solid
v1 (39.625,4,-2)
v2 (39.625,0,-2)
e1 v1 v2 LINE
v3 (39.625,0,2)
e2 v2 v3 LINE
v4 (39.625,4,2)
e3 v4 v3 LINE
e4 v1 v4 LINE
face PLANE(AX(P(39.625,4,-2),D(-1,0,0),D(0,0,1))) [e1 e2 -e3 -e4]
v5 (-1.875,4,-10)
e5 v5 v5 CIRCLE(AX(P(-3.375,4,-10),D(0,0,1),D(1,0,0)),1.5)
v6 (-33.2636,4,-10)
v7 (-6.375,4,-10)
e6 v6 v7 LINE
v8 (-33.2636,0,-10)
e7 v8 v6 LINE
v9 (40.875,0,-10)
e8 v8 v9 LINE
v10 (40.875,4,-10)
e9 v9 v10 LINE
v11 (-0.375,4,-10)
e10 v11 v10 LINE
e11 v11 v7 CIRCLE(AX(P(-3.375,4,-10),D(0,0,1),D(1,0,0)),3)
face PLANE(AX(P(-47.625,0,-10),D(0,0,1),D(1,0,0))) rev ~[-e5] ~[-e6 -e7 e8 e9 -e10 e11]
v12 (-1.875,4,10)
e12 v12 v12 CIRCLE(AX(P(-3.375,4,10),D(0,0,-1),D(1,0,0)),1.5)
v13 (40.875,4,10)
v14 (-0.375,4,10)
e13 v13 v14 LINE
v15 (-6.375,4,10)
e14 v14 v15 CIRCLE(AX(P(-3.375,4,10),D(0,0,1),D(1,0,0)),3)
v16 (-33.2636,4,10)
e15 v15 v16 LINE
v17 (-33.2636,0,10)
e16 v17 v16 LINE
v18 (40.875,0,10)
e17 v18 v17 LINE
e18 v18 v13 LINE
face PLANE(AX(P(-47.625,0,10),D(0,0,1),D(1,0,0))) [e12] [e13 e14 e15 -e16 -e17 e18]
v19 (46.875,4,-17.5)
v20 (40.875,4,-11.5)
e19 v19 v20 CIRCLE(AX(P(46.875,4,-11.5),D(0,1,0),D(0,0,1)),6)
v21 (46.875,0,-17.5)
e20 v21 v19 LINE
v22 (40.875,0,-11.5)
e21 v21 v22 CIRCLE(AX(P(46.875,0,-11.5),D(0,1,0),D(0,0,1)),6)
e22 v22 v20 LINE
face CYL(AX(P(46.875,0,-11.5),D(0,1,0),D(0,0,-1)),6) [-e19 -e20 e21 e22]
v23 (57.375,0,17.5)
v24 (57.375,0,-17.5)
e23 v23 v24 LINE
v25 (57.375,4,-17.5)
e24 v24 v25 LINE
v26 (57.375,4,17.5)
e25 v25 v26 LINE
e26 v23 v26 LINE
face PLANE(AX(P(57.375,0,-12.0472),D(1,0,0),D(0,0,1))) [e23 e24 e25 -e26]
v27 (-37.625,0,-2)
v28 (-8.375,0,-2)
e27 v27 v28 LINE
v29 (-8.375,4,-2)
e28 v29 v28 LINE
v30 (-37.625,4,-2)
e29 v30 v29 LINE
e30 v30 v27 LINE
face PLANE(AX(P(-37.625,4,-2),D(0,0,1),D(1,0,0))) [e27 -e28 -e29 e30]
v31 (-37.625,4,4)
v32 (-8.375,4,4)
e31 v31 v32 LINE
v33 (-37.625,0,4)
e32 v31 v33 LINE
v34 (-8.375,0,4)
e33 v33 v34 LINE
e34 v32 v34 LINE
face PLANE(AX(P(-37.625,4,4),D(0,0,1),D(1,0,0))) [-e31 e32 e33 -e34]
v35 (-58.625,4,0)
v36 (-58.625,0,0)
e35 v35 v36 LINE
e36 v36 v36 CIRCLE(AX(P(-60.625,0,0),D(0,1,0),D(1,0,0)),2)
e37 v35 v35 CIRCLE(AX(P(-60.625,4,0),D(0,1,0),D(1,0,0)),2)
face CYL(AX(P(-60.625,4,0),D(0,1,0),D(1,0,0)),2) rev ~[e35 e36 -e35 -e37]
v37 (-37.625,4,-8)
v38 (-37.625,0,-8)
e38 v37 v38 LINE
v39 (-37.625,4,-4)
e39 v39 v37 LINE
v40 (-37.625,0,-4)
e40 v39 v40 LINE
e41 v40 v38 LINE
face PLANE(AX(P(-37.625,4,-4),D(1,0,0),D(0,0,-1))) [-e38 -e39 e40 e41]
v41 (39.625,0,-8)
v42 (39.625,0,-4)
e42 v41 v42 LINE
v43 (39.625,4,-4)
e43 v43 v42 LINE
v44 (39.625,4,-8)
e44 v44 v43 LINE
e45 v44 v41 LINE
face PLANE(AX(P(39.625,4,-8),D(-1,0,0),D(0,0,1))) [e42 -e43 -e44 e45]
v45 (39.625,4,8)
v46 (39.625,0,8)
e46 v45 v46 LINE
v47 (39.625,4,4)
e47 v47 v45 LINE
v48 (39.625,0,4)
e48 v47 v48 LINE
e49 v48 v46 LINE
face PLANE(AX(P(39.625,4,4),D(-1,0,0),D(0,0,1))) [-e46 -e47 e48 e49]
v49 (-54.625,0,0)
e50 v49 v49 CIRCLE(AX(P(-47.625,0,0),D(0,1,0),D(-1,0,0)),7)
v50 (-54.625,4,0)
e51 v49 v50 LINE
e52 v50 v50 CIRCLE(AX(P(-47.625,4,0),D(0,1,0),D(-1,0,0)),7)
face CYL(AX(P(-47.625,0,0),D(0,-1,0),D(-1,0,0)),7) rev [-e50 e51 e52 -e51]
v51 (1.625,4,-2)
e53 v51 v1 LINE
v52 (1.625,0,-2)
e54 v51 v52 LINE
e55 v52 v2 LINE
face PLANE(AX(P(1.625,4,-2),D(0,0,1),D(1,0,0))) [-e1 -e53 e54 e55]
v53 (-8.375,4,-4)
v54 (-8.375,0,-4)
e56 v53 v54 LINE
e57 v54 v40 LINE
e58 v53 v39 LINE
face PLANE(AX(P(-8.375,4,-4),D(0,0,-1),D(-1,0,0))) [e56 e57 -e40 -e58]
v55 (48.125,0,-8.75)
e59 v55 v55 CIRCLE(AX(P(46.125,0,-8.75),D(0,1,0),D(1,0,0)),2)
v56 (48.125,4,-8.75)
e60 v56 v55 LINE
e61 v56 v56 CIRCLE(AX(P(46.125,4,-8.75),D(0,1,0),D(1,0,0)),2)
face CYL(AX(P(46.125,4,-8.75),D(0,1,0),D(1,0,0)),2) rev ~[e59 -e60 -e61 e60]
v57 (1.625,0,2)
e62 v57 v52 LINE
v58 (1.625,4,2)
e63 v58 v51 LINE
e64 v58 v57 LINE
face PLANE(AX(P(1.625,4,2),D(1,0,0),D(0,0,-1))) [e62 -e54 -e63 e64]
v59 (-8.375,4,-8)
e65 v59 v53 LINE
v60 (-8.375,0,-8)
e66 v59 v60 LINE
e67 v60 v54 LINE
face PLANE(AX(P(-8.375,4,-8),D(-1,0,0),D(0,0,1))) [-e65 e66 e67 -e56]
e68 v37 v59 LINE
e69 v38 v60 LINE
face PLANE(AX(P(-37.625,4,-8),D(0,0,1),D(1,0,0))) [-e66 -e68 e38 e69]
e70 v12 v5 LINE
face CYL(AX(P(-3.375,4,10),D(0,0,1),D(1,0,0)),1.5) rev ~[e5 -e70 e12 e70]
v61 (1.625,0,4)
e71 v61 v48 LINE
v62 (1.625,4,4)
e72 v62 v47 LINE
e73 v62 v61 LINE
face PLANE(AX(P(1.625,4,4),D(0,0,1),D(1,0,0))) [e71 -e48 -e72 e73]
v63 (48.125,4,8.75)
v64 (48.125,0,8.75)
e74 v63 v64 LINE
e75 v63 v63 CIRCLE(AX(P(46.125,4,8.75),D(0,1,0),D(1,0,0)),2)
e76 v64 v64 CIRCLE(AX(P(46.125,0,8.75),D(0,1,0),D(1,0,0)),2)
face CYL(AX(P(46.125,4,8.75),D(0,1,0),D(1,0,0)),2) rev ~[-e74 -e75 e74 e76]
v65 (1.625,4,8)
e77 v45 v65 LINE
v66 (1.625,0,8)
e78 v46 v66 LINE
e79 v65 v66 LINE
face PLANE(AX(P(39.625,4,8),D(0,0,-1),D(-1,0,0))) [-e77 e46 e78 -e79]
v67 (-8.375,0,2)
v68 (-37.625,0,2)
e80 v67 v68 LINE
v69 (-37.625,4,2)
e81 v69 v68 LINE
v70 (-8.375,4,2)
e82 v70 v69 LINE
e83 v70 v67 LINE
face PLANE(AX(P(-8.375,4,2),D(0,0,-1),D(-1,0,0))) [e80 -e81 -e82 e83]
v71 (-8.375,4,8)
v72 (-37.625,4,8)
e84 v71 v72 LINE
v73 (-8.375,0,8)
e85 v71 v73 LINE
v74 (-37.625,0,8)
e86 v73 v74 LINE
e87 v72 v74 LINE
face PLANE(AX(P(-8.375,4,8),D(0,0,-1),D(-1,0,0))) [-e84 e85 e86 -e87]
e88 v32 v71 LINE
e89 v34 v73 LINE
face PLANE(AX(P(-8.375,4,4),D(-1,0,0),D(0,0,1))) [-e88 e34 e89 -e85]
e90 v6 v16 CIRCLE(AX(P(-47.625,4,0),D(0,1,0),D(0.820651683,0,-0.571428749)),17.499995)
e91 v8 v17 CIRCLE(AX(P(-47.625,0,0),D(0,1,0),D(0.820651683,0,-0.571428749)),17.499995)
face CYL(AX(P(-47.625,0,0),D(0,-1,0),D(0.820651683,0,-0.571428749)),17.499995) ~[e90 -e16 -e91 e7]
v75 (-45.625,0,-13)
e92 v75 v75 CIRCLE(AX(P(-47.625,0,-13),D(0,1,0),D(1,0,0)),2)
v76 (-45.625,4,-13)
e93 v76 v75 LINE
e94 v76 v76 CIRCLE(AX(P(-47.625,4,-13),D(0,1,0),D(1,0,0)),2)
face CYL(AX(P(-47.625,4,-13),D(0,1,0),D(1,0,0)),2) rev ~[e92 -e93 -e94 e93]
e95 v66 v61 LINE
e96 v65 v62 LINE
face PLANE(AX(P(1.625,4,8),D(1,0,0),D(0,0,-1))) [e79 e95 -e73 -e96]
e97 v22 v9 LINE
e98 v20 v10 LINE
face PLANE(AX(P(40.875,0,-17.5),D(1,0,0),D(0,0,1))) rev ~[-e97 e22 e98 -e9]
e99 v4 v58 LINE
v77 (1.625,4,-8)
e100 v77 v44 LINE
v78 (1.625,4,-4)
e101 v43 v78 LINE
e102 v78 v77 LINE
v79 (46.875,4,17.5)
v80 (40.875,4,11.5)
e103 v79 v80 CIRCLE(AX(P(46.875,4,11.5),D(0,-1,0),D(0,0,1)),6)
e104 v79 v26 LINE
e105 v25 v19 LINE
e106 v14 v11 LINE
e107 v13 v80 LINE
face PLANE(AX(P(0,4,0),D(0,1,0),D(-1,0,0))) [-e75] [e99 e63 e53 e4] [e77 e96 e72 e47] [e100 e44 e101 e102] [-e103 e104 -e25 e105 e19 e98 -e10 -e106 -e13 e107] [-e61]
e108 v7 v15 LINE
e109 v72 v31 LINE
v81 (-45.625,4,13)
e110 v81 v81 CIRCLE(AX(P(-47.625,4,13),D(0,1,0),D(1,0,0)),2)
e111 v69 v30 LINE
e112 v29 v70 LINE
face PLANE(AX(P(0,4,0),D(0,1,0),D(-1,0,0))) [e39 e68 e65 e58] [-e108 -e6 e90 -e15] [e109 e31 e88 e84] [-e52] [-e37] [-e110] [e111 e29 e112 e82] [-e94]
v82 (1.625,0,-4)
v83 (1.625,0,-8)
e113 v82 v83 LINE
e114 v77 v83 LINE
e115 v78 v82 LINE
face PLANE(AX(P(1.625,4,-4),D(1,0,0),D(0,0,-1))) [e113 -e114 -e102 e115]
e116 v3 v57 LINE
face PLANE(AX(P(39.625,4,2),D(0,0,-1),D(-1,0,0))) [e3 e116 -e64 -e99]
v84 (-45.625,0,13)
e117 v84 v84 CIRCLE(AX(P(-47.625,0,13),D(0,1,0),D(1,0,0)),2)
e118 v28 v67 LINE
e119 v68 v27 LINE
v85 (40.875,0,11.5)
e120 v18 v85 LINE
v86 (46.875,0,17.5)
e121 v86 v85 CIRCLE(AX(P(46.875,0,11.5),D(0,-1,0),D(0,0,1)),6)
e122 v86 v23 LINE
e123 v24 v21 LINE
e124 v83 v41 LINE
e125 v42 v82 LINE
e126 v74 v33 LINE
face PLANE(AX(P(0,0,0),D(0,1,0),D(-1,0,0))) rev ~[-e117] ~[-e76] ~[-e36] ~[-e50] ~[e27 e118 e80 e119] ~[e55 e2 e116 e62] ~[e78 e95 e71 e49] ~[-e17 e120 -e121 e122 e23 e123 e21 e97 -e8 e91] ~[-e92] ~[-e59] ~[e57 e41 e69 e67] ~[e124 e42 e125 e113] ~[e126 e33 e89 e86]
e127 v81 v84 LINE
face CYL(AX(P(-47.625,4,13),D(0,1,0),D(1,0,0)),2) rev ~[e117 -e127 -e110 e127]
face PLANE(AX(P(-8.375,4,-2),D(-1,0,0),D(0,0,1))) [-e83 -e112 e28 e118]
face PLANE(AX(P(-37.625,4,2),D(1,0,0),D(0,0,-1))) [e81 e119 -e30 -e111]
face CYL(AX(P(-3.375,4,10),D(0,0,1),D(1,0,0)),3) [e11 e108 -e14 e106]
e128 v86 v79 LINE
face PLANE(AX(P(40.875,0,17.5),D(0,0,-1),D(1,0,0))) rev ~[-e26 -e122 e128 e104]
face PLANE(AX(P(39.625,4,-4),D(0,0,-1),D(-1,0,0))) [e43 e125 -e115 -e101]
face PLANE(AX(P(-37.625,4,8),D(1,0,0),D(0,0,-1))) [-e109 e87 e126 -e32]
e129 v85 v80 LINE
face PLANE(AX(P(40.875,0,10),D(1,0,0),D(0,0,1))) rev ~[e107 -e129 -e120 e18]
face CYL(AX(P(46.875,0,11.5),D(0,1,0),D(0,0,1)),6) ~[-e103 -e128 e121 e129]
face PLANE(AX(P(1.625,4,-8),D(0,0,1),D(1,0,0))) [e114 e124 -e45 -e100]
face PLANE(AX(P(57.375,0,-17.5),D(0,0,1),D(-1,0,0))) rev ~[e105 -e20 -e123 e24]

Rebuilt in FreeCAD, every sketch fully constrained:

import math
import FreeCAD as App
import Part
import Sketcher

V = App.Vector
Q = App.Units.Quantity


def edges_at(feature, points):
    """Names of the edges that pass closest to the given points."""
    edges = feature.Shape.Edges
    near = lambda p: min(range(len(edges)), key=lambda i: edges[i].distToShape(Part.Vertex(*p))[0])
    return sorted({f"Edge{near(p) + 1}" for p in points})

doc = App.newDocument("Part")
body = doc.addObject("PartDesign::Body", "Body")

sketch1 = body.newObject("Sketcher::SketchObject", "Sketch")
sketch1.AttachmentSupport = (doc.getObject("XZ_Plane"), [""])
sketch1.MapMode = "FlatFace"
sketch1.addGeometry([
    Part.LineSegment(V(57, 18, 0), V(57, -18, 0)),
    Part.LineSegment(V(57, -18, 0), V(41, -18, 0)),
    Part.LineSegment(V(41, -18, 0), V(41, -10, 0)),
    Part.LineSegment(V(41, -10, 0), V(-33, -10, 0)),
    Part.ArcOfCircle(Part.Circle(V(-48, 0, 0), V(0, 0, 1), 17), math.radians(35), math.radians(325)),
    Part.LineSegment(V(-33, 10, 0), V(41, 10, 0)),
    Part.LineSegment(V(41, 10, 0), V(41, 18, 0)),
    Part.LineSegment(V(41, 18, 0), V(57, 18, 0)),
    Part.Circle(V(-48, 0, 0), V(0, 0, 1), 7),
], False)
sketch1.addConstraint([
    Sketcher.Constraint("Coincident", 0, 2, 1, 1),
    Sketcher.Constraint("Coincident", 1, 2, 2, 1),
    Sketcher.Constraint("Coincident", 2, 2, 3, 1),
    Sketcher.Constraint("Coincident", 3, 2, 4, 2),
    Sketcher.Constraint("Coincident", 4, 1, 5, 1),
    Sketcher.Constraint("Coincident", 5, 2, 6, 1),
    Sketcher.Constraint("Coincident", 6, 2, 7, 1),
    Sketcher.Constraint("Coincident", 7, 2, 0, 1),
    Sketcher.Constraint("Vertical", 0),
    Sketcher.Constraint("Horizontal", 1),
    Sketcher.Constraint("Vertical", 2),
    Sketcher.Constraint("Horizontal", 3),
    Sketcher.Constraint("Horizontal", 5),
    Sketcher.Constraint("Vertical", 6),
    Sketcher.Constraint("Horizontal", 7),
    Sketcher.Constraint("Coincident", 8, 3, 4, 3),
    Sketcher.Constraint("Symmetric", 3, 2, 4, 1, -1),
    Sketcher.Constraint("Symmetric", 1, 2, 6, 2, -1),
    Sketcher.Constraint("Diameter", 8, Q("14 mm")),
    Sketcher.Constraint("Radius", 4, Q("17.5 mm")),
    Sketcher.Constraint("DistanceY", 0, 2, 0, 1, Q("35 mm")),
    Sketcher.Constraint("DistanceX", 1, 2, 1, 1, Q("16.5 mm")),
    Sketcher.Constraint("DistanceY", 3, 2, 4, 1, Q("20 mm")),
    Sketcher.Constraint("DistanceX", 4, 3, 0, 2, Q("105 mm")),
    Sketcher.Constraint("DistanceX", 4, 3, -1, 1, Q("47.625 mm")),
])
pad1 = body.newObject("PartDesign::Pad", "Pad")
pad1.Profile = sketch1
pad1.Length = 4
pad1.Reversed = True

sketch2 = body.newObject("Sketcher::SketchObject", "Sketch001")
sketch2.AttachmentSupport = (doc.getObject("XZ_Plane"), [""])
sketch2.MapMode = "FlatFace"
sketch2.AttachmentOffset = App.Placement(V(0, 0, -4), App.Rotation())
sketch2.addGeometry([
    Part.Circle(V(46.1, 8.8, 0), V(0, 0, 1), 2),
    Part.Circle(V(46.1, -8.8, 0), V(0, 0, 1), 2),
], False)
sketch2.addConstraint([
    Sketcher.Constraint("Equal", 0, 1),
    Sketcher.Constraint("Symmetric", 0, 3, 1, 3, -1),
    Sketcher.Constraint("Diameter", 0, Q("4 mm")),
    Sketcher.Constraint("DistanceY", 1, 3, 0, 3, Q("17.5 mm")),
    Sketcher.Constraint("DistanceX", -1, 1, 0, 3, Q("46.125 mm")),
])
pocket1 = body.newObject("PartDesign::Pocket", "Pocket")
pocket1.Profile = sketch2
pocket1.Type = "ThroughAll"
pocket1.Reversed = True
doc.recompute()

fillet = body.newObject("PartDesign::Fillet", "Fillet")
fillet.Base = (pocket1, edges_at(pocket1, [(40.875, 2, -17.5), (40.875, 2, 17.5)]))
fillet.Radius = 6

sketch3 = body.newObject("Sketcher::SketchObject", "Sketch002")
sketch3.AttachmentSupport = (doc.getObject("XY_Plane"), [""])
sketch3.MapMode = "FlatFace"
sketch3.AttachmentOffset = App.Placement(V(0, 0, 10), App.Rotation())
sketch3.addGeometry(Part.Circle(V(-3.4, 4, 0), V(0, 0, 1), 1.5), False)
sketch3.addConstraint([
    Sketcher.Constraint("Diameter", 0, Q("3 mm")),
    Sketcher.Constraint("DistanceY", -1, 1, 0, 3, Q("4 mm")),
    Sketcher.Constraint("DistanceX", 0, 3, -1, 1, Q("3.375 mm")),
])
pocket2 = body.newObject("PartDesign::Pocket", "Pocket001")
pocket2.Profile = sketch3
pocket2.Length = 20

sketch4 = body.newObject("Sketcher::SketchObject", "Sketch003")
sketch4.AttachmentSupport = (doc.getObject("XY_Plane"), [""])
sketch4.MapMode = "FlatFace"
sketch4.AttachmentOffset = App.Placement(V(0, 0, 10), App.Rotation())
sketch4.addGeometry([
    Part.Circle(V(-3.4, 4, 0), V(0, 0, 1), 3),
    Part.Circle(V(-3.4, 4, 0), V(0, 0, 1), 1.5),
], False)
sketch4.addConstraint([
    Sketcher.Constraint("Coincident", 1, 3, 0, 3),
    Sketcher.Constraint("Diameter", 0, Q("6 mm")),
    Sketcher.Constraint("Diameter", 1, Q("3 mm")),
    Sketcher.Constraint("DistanceY", -1, 1, 0, 3, Q("4 mm")),
    Sketcher.Constraint("DistanceX", 0, 3, -1, 1, Q("3.375 mm")),
])
pad2 = body.newObject("PartDesign::Pad", "Pad001")
pad2.Profile = sketch4
pad2.Length = 20
pad2.Reversed = True

sketch5 = body.newObject("Sketcher::SketchObject", "Sketch004")
sketch5.AttachmentSupport = (doc.getObject("XZ_Plane"), [""])
sketch5.MapMode = "FlatFace"
sketch5.AttachmentOffset = App.Placement(V(0, 0, -4), App.Rotation())
sketch5.addGeometry([
    Part.LineSegment(V(-8.4, -8, 0), V(-37.6, -8, 0)),
    Part.LineSegment(V(-37.6, -8, 0), V(-37.6, -4, 0)),
    Part.LineSegment(V(-37.6, -4, 0), V(-8.4, -4, 0)),
    Part.LineSegment(V(-8.4, -4, 0), V(-8.4, -8, 0)),
    Part.LineSegment(V(-8.4, -2, 0), V(-37.6, -2, 0)),
    Part.LineSegment(V(-37.6, -2, 0), V(-37.6, 2, 0)),
    Part.LineSegment(V(-37.6, 2, 0), V(-8.4, 2, 0)),
    Part.LineSegment(V(-8.4, 2, 0), V(-8.4, -2, 0)),
    Part.LineSegment(V(-8.4, 4, 0), V(-37.6, 4, 0)),
    Part.LineSegment(V(-37.6, 4, 0), V(-37.6, 8, 0)),
    Part.LineSegment(V(-37.6, 8, 0), V(-8.4, 8, 0)),
    Part.LineSegment(V(-8.4, 8, 0), V(-8.4, 4, 0)),
    Part.LineSegment(V(39.6, -8, 0), V(1.6, -8, 0)),
    Part.LineSegment(V(1.6, -8, 0), V(1.6, -4, 0)),
    Part.LineSegment(V(1.6, -4, 0), V(39.6, -4, 0)),
    Part.LineSegment(V(39.6, -4, 0), V(39.6, -8, 0)),
    Part.LineSegment(V(1.6, -2, 0), V(1.6, 2, 0)),
    Part.LineSegment(V(1.6, 2, 0), V(39.6, 2, 0)),
    Part.LineSegment(V(39.6, 2, 0), V(39.6, -2, 0)),
    Part.LineSegment(V(39.6, -2, 0), V(1.6, -2, 0)),
    Part.LineSegment(V(1.6, 4, 0), V(1.6, 8, 0)),
    Part.LineSegment(V(1.6, 8, 0), V(39.6, 8, 0)),
    Part.LineSegment(V(39.6, 8, 0), V(39.6, 4, 0)),
    Part.LineSegment(V(39.6, 4, 0), V(1.6, 4, 0)),
], False)
sketch5.addConstraint([
    Sketcher.Constraint("Coincident", 0, 2, 1, 1),
    Sketcher.Constraint("Coincident", 1, 2, 2, 1),
    Sketcher.Constraint("Coincident", 2, 2, 3, 1),
    Sketcher.Constraint("Coincident", 3, 2, 0, 1),
    Sketcher.Constraint("Coincident", 4, 2, 5, 1),
    Sketcher.Constraint("Coincident", 5, 2, 6, 1),
    Sketcher.Constraint("Coincident", 6, 2, 7, 1),
    Sketcher.Constraint("Coincident", 7, 2, 4, 1),
    Sketcher.Constraint("Coincident", 8, 2, 9, 1),
    Sketcher.Constraint("Coincident", 9, 2, 10, 1),
    Sketcher.Constraint("Coincident", 10, 2, 11, 1),
    Sketcher.Constraint("Coincident", 11, 2, 8, 1),
    Sketcher.Constraint("Coincident", 12, 2, 13, 1),
    Sketcher.Constraint("Coincident", 13, 2, 14, 1),
    Sketcher.Constraint("Coincident", 14, 2, 15, 1),
    Sketcher.Constraint("Coincident", 15, 2, 12, 1),
    Sketcher.Constraint("Coincident", 16, 2, 17, 1),
    Sketcher.Constraint("Coincident", 17, 2, 18, 1),
    Sketcher.Constraint("Coincident", 18, 2, 19, 1),
    Sketcher.Constraint("Coincident", 19, 2, 16, 1),
    Sketcher.Constraint("Coincident", 20, 2, 21, 1),
    Sketcher.Constraint("Coincident", 21, 2, 22, 1),
    Sketcher.Constraint("Coincident", 22, 2, 23, 1),
    Sketcher.Constraint("Coincident", 23, 2, 20, 1),
    Sketcher.Constraint("Horizontal", 0),
    Sketcher.Constraint("Vertical", 1),
    Sketcher.Constraint("Horizontal", 2),
    Sketcher.Constraint("Vertical", 3),
    Sketcher.Constraint("Horizontal", 4),
    Sketcher.Constraint("Vertical", 5),
    Sketcher.Constraint("Horizontal", 6),
    Sketcher.Constraint("Vertical", 7),
    Sketcher.Constraint("Horizontal", 8),
    Sketcher.Constraint("Vertical", 9),
    Sketcher.Constraint("Horizontal", 10),
    Sketcher.Constraint("Vertical", 11),
    Sketcher.Constraint("Horizontal", 12),
    Sketcher.Constraint("Vertical", 13),
    Sketcher.Constraint("Horizontal", 14),
    Sketcher.Constraint("Vertical", 15),
    Sketcher.Constraint("Vertical", 16),
    Sketcher.Constraint("Horizontal", 17),
    Sketcher.Constraint("Vertical", 18),
    Sketcher.Constraint("Horizontal", 19),
    Sketcher.Constraint("Vertical", 20),
    Sketcher.Constraint("Horizontal", 21),
    Sketcher.Constraint("Vertical", 22),
    Sketcher.Constraint("Horizontal", 23),
    Sketcher.Constraint("Symmetric", 1, 2, 8, 2, -1),
    Sketcher.Constraint("Symmetric", 3, 2, 10, 2, -1),
    Sketcher.Constraint("Symmetric", 12, 2, 20, 2, -1),
    Sketcher.Constraint("Symmetric", 14, 2, 22, 2, -1),
    Sketcher.Constraint("Horizontal", 3, 2, 12, 2),
    Sketcher.Constraint("Horizontal", 2, 2, 13, 2),
    Sketcher.Constraint("Horizontal", 6, 2, 16, 2),
    Sketcher.Constraint("Horizontal", 7, 2, 18, 2),
    Sketcher.Constraint("Vertical", 1, 2, 4, 2),
    Sketcher.Constraint("Vertical", 3, 2, 6, 2),
    Sketcher.Constraint("Vertical", 13, 2, 16, 2),
    Sketcher.Constraint("Vertical", 15, 2, 17, 2),
    Sketcher.Constraint("Equal", 3, 5),
    Sketcher.Constraint("DistanceX", 12, 2, 12, 1, Q("38 mm")),
    Sketcher.Constraint("DistanceY", 1, 1, 1, 2, Q("4 mm")),
    Sketcher.Constraint("DistanceY", 1, 2, -1, 1, Q("4 mm")),
    Sketcher.Constraint("DistanceY", 4, 2, -1, 1, Q("2 mm")),
    Sketcher.Constraint("DistanceX", 3, 2, 12, 2, Q("10 mm")),
    Sketcher.Constraint("DistanceX", 0, 2, 0, 1, Q("29.25 mm")),
    Sketcher.Constraint("DistanceX", 0, 2, -1, 1, Q("37.625 mm")),
])
pocket3 = body.newObject("PartDesign::Pocket", "Pocket002")
pocket3.Profile = sketch5
pocket3.Type = "ThroughAll"
pocket3.Reversed = True

sketch6 = body.newObject("Sketcher::SketchObject", "Sketch005")
sketch6.AttachmentSupport = (doc.getObject("XZ_Plane"), [""])
sketch6.MapMode = "FlatFace"
sketch6.AttachmentOffset = App.Placement(V(0, 0, -4), App.Rotation())
sketch6.addGeometry([
    Part.Circle(V(-47.6, -13, 0), V(0, 0, 1), 2),
    Part.Circle(V(-47.6, 13, 0), V(0, 0, 1), 2),
    Part.Circle(V(-60.6, 0, 0), V(0, 0, 1), 2),
], False)
sketch6.addConstraint([
    Sketcher.Constraint("Equal", 0, 1),
    Sketcher.Constraint("Equal", 1, 2),
    Sketcher.Constraint("Symmetric", 0, 3, 1, 3, -1),
    Sketcher.Constraint("PointOnObject", 2, 3, -1),
    Sketcher.Constraint("Diameter", 0, Q("4 mm")),
    Sketcher.Constraint("DistanceY", 0, 3, -1, 1, Q("13 mm")),
    Sketcher.Constraint("DistanceX", 2, 3, 0, 3, Q("13 mm")),
    Sketcher.Constraint("DistanceX", 0, 3, -1, 1, Q("47.625 mm")),
])
pocket4 = body.newObject("PartDesign::Pocket", "Pocket003")
pocket4.Profile = sketch6
pocket4.Type = "ThroughAll"
pocket4.Reversed = True

doc.recompute()
